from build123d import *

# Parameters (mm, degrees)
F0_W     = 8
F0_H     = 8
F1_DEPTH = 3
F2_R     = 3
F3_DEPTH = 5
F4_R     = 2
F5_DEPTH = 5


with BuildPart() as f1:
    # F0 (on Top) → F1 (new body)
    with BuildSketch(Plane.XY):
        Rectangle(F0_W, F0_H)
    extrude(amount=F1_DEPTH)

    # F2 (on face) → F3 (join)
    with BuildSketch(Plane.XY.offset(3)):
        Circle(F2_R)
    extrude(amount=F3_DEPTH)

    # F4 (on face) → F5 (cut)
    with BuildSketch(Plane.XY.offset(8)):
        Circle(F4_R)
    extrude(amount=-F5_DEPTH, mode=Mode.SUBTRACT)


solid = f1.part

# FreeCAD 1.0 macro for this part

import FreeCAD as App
import Part
import Sketcher
from FreeCAD import Vector


def add_polygon(sketch, points):
    """Adds a closed chain of lines whose ends are joined by coincident constraints."""
    first, n = sketch.GeometryCount, len(points)
    for a, b in zip(points, points[1:] + points[:1]):
        sketch.addGeometry(Part.LineSegment(App.Vector(*a, 0), App.Vector(*b, 0)), False)
    for i in range(n):
        sketch.addConstraint(Sketcher.Constraint("Coincident", first + i, 2, first + (i + 1) % n, 1))

doc = App.newDocument("Part")
body = doc.addObject("PartDesign::Body", "Body")

# Sketch on XY plane
sketch1 = doc.addObject("Sketcher::SketchObject", "Sketch")
body.addObject(sketch1)
sketch1.AttachmentSupport = (doc.XY_Plane, [""])
sketch1.MapMode = "FlatFace"
add_polygon(sketch1, [(-4, 4), (-4, -4), (4, -4), (4, 4)])  # lines 0-3
sketch1.addConstraint([
    Sketcher.Constraint("Vertical", 0),
    Sketcher.Constraint("Horizontal", 1),
    Sketcher.Constraint("Vertical", 2),
    Sketcher.Constraint("Horizontal", 3),
    Sketcher.Constraint("Symmetric", 0, 2, 2, 2, -1, 1),
    Sketcher.Constraint("Equal", 3, 0),
    Sketcher.Constraint("DistanceX", 1, 1, 1, 2, 8.0),
])
pad1 = doc.addObject("PartDesign::Pad", "Pad")
body.addObject(pad1)
pad1.Profile = sketch1
pad1.Length = 3

# Sketch on XY plane
sketch2 = doc.addObject("Sketcher::SketchObject", "Sketch001")
body.addObject(sketch2)
sketch2.AttachmentSupport = (doc.XY_Plane, [""])
sketch2.MapMode = "FlatFace"
sketch2.AttachmentOffset = App.Placement(Vector(0, 0, 3), App.Rotation())
sketch2.addGeometry(Part.Circle(Vector(0, 0, 0), Vector(0, 0, 1), 3), False)
sketch2.addConstraint([
    Sketcher.Constraint("Coincident", 0, 3, -1, 1),
    Sketcher.Constraint("Diameter", 0, 6.0),
])
pad2 = doc.addObject("PartDesign::Pad", "Pad001")
body.addObject(pad2)
pad2.Profile = sketch2
pad2.Length = 5

# Sketch on XY plane
sketch3 = doc.addObject("Sketcher::SketchObject", "Sketch002")
body.addObject(sketch3)
sketch3.AttachmentSupport = (doc.XY_Plane, [""])
sketch3.MapMode = "FlatFace"
sketch3.AttachmentOffset = App.Placement(Vector(0, 0, 8), App.Rotation())
sketch3.addGeometry(Part.Circle(Vector(0, 0, 0), Vector(0, 0, 1), 2), False)
sketch3.addConstraint([
    Sketcher.Constraint("Coincident", 0, 3, -1, 1),
    Sketcher.Constraint("Diameter", 0, 4.0),
])
pocket1 = doc.addObject("PartDesign::Pocket", "Pocket")
body.addObject(pocket1)
pocket1.Profile = sketch3
pocket1.Length = 5

doc.recompute()
